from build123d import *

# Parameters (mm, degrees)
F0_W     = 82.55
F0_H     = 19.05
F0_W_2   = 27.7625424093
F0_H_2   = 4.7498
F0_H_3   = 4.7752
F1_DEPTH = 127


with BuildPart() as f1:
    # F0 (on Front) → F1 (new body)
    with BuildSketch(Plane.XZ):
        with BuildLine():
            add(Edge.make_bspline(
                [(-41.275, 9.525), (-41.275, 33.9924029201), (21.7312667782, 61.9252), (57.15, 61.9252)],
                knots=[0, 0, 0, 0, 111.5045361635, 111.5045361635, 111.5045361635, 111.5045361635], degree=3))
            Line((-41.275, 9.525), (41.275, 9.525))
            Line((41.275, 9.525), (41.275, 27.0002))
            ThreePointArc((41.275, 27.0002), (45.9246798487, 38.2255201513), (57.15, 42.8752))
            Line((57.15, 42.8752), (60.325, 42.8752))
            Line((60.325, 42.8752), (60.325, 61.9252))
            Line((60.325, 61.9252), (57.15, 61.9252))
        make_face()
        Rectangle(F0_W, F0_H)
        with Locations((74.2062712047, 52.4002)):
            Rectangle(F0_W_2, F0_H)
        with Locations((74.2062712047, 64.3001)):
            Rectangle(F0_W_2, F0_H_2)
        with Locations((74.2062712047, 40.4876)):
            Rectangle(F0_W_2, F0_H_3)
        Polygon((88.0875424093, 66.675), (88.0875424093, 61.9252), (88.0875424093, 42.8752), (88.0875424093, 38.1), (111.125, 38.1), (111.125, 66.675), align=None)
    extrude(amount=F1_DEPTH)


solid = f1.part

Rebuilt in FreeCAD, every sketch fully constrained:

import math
import FreeCAD as App
import Part
import Sketcher
from FreeCAD import Vector
Q = App.Units.Quantity

doc = App.newDocument("Part")
body = doc.addObject("PartDesign::Body", "Body")

# Sketch on XZ plane
sketch1 = body.newObject("Sketcher::SketchObject", "Sketch")
sketch1.AttachmentSupport = (doc.getObject("XZ_Plane"), [""])
sketch1.MapMode = "FlatFace"
sketch1.addGeometry(Part.BSplineCurve([Vector(-41.275, 9.525, 0), Vector(-41.275, 33.992403, 0), Vector(21.731267, 61.9252, 0), Vector(57.15, 61.9252, 0)], [4, 4], [0, 111.504536164], False, 3, [1, 1, 1, 1], False), False)
sketch1.addGeometry(Part.LineSegment(Vector(-41.275, 9.525, 0), Vector(-41.275, -9.525, 0)), False)
sketch1.addGeometry(Part.LineSegment(Vector(-41.275, -9.525, 0), Vector(41.275, -9.525, 0)), False)
sketch1.addGeometry(Part.LineSegment(Vector(41.275, -9.525, 0), Vector(41.275, 27.0002, 0)), False)
sketch1.addGeometry(Part.ArcOfCircle(Part.Circle(Vector(57.15, 27.0002, 0), Vector(0, 0, 1), 15.875), math.radians(90), math.radians(180)), False)
sketch1.addGeometry(Part.LineSegment(Vector(57.15, 42.8752, 0), Vector(60.325, 42.8752, 0)), False)
sketch1.addGeometry(Part.LineSegment(Vector(60.325, 42.8752, 0), Vector(60.325, 38.1, 0)), False)
sketch1.addGeometry(Part.LineSegment(Vector(60.325, 38.1, 0), Vector(111.125, 38.1, 0)), False)
sketch1.addGeometry(Part.LineSegment(Vector(111.125, 38.1, 0), Vector(111.125, 66.675, 0)), False)
sketch1.addGeometry(Part.LineSegment(Vector(111.125, 66.675, 0), Vector(60.325, 66.675, 0)), False)
sketch1.addGeometry(Part.LineSegment(Vector(60.325, 66.675, 0), Vector(60.325, 61.9252, 0)), False)
sketch1.addGeometry(Part.LineSegment(Vector(60.325, 61.9252, 0), Vector(57.15, 61.9252, 0)), False)
sketch1.addConstraint(Sketcher.Constraint("Block", 0))
sketch1.addConstraint(Sketcher.Constraint("Coincident", 0, 1, 1, 1))
sketch1.addConstraint(Sketcher.Constraint("Coincident", 1, 2, 2, 1))
sketch1.addConstraint(Sketcher.Constraint("Coincident", 2, 2, 3, 1))
sketch1.addConstraint(Sketcher.Constraint("Tangent", 3, 2, 4, 2))
sketch1.addConstraint(Sketcher.Constraint("Tangent", 4, 1, 5, 1))
sketch1.addConstraint(Sketcher.Constraint("Coincident", 5, 2, 6, 1))
sketch1.addConstraint(Sketcher.Constraint("Coincident", 6, 2, 7, 1))
sketch1.addConstraint(Sketcher.Constraint("Coincident", 7, 2, 8, 1))
sketch1.addConstraint(Sketcher.Constraint("Coincident", 8, 2, 9, 1))
sketch1.addConstraint(Sketcher.Constraint("Coincident", 9, 2, 10, 1))
sketch1.addConstraint(Sketcher.Constraint("Coincident", 10, 2, 11, 1))
sketch1.addConstraint(Sketcher.Constraint("Coincident", 11, 2, 0, 2))
sketch1.addConstraint(Sketcher.Constraint("Vertical", 1))
sketch1.addConstraint(Sketcher.Constraint("Horizontal", 2))
sketch1.addConstraint(Sketcher.Constraint("Vertical", 3))
sketch1.addConstraint(Sketcher.Constraint("Horizontal", 5))
sketch1.addConstraint(Sketcher.Constraint("Vertical", 6))
sketch1.addConstraint(Sketcher.Constraint("Horizontal", 7))
sketch1.addConstraint(Sketcher.Constraint("Vertical", 8))
sketch1.addConstraint(Sketcher.Constraint("Horizontal", 9))
sketch1.addConstraint(Sketcher.Constraint("Vertical", 10))
sketch1.addConstraint(Sketcher.Constraint("Horizontal", 11))
sketch1.addConstraint(Sketcher.Constraint("Vertical", 6, 2, 9, 2))
sketch1.addConstraint(Sketcher.Constraint("Vertical", 4, 1, 11, 2))
sketch1.addConstraint(Sketcher.Constraint("DistanceX", 7, 1, 7, 2, Q("2 in")))
sketch1.addConstraint(Sketcher.Constraint("Radius", 4, Q("0.625 in")))
sketch1.addConstraint(Sketcher.Constraint("DistanceX", 1, 2, 5, 2, Q("4 in")))
sketch1.addConstraint(Sketcher.Constraint("DistanceY", 1, 2, 1, 1, Q("0.75 in")))
sketch1.addConstraint(Sketcher.Constraint("DistanceY", -1, 1, 6, 2, Q("1.5 in")))
sketch1.addConstraint(Sketcher.Constraint("DistanceY", 3, 1, 3, 2, Q("1.438 in")))
sketch1.addConstraint(Sketcher.Constraint("DistanceY", 8, 1, 8, 2, Q("1.125 in")))
pad1 = body.newObject("PartDesign::Pad", "Pad")
pad1.Profile = sketch1
pad1.Length = Q("5 in")

doc.recompute()
